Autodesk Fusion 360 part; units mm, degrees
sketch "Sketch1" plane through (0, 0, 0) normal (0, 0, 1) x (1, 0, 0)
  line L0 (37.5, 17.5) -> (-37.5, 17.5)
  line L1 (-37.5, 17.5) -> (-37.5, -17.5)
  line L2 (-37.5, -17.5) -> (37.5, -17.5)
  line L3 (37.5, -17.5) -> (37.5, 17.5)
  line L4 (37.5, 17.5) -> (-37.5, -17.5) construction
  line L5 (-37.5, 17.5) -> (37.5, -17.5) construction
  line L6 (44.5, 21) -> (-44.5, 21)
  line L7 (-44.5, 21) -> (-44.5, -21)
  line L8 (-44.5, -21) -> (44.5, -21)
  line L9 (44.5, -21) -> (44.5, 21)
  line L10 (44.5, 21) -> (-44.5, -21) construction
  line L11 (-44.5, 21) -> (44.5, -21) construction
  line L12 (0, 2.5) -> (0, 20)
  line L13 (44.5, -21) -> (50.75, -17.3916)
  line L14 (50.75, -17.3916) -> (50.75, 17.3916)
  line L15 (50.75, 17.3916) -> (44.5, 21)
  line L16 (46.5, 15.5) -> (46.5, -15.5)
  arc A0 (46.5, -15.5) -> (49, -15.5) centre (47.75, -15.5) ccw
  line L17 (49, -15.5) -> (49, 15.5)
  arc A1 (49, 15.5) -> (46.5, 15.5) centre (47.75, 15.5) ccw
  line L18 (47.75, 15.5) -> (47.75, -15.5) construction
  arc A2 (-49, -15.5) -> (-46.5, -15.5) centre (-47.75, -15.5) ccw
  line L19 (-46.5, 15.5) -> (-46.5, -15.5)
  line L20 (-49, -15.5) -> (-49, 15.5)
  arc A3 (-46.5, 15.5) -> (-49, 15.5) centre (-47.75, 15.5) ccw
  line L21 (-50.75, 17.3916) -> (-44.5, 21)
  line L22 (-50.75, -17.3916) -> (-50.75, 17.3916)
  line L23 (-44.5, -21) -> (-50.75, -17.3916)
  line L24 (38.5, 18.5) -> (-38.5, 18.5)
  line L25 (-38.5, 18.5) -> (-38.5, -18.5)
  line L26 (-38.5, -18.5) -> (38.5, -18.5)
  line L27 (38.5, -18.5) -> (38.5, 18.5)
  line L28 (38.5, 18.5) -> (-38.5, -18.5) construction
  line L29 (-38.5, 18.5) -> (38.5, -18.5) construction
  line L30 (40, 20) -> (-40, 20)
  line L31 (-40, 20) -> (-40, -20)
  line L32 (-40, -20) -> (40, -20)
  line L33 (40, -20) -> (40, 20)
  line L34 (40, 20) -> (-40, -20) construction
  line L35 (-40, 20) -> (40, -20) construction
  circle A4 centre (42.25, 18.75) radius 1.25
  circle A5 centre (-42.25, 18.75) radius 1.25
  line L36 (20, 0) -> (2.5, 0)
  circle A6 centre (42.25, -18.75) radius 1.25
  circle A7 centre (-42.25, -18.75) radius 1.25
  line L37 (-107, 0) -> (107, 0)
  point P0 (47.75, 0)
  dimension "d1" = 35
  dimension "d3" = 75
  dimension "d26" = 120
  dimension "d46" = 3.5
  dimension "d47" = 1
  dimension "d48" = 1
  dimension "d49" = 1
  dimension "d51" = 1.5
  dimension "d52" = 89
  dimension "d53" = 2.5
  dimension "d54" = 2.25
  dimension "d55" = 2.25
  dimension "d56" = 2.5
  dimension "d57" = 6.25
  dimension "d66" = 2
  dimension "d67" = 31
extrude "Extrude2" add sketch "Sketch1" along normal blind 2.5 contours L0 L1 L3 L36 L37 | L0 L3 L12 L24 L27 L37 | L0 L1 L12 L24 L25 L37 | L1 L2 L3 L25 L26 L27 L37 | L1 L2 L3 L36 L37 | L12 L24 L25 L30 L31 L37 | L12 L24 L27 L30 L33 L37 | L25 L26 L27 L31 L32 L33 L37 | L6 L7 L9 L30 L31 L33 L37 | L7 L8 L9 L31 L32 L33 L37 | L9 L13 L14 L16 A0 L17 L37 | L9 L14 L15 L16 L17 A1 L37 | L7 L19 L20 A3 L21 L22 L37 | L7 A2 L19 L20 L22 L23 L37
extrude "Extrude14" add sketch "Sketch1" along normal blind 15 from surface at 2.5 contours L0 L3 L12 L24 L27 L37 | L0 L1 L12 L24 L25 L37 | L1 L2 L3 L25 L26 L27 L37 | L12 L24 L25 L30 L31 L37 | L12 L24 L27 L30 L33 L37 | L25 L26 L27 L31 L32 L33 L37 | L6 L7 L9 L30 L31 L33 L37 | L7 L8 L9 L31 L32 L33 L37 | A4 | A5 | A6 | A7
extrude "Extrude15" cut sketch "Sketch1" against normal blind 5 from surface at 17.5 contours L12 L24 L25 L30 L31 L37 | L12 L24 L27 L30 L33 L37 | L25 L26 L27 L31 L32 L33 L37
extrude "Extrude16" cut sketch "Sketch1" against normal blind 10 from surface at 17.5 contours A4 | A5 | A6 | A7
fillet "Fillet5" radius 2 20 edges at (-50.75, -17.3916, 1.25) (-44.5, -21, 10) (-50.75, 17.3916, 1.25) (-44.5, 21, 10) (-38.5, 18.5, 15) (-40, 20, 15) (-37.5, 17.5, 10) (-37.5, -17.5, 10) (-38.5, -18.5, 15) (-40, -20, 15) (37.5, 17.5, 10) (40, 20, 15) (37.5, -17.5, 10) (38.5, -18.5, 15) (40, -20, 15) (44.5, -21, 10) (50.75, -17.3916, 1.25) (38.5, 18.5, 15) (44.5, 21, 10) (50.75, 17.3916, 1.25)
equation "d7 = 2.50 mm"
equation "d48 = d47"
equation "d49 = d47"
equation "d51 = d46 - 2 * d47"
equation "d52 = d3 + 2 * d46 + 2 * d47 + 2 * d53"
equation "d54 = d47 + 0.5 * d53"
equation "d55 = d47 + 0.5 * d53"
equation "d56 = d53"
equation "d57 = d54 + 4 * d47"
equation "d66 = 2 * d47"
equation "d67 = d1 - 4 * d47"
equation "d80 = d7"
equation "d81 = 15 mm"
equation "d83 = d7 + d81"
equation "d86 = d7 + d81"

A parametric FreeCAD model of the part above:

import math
import FreeCAD as App
import Part
import Sketcher
from FreeCAD import Vector
Q = App.Units.Quantity


def edges_at(feature, points):
    """Names of the edges that pass closest to the given points."""
    edges = feature.Shape.Edges
    near = lambda p: min(range(len(edges)), key=lambda i: edges[i].distToShape(Part.Vertex(*p))[0])
    return sorted({f"Edge{near(p) + 1}" for p in points})

doc = App.newDocument("Part")
body = doc.addObject("PartDesign::Body", "Body")

# Sketch on XY plane
sketch1 = body.newObject("Sketcher::SketchObject", "Sketch")
sketch1.AttachmentSupport = (doc.getObject("XY_Plane"), [""])
sketch1.MapMode = "FlatFace"
sketch1.addGeometry([
    Part.LineSegment(Vector(44.5, 21, 0), Vector(-44.5, 21, 0)),  # 0
    Part.LineSegment(Vector(-44.5, 21, 0), Vector(-50.8, 17.4, 0)),  # 1
    Part.LineSegment(Vector(-50.8, 17.4, 0), Vector(-50.8, -17.4, 0)),  # 2
    Part.LineSegment(Vector(-50.8, -17.4, 0), Vector(-44.5, -21, 0)),  # 3
    Part.LineSegment(Vector(-44.5, -21, 0), Vector(44.5, -21, 0)),  # 4
    Part.LineSegment(Vector(44.5, -21, 0), Vector(50.8, -17.4, 0)),  # 5
    Part.LineSegment(Vector(50.8, -17.4, 0), Vector(50.8, 17.4, 0)),  # 6
    Part.LineSegment(Vector(50.8, 17.4, 0), Vector(44.5, 21, 0)),  # 7
    Part.Circle(Vector(-42.2, 18.8, 0), Vector(0, 0, 1), 1.2),  # 8
    Part.Circle(Vector(42.2, 18.8, 0), Vector(0, 0, 1), 1.2),  # 9
    Part.Circle(Vector(42.2, -18.8, 0), Vector(0, 0, 1), 1.2),  # 10
    Part.Circle(Vector(-42.2, -18.8, 0), Vector(0, 0, 1), 1.2),  # 11
    Part.LineSegment(Vector(-46.5, 15.5, 0), Vector(-46.5, -15.5, 0)),  # 12
    Part.ArcOfCircle(Part.Circle(Vector(-47.8, -15.5, 0), Vector(0, 0, 1), 1.2), math.radians(180), math.radians(360)),  # 13
    Part.LineSegment(Vector(-49, -15.5, 0), Vector(-49, 15.5, 0)),  # 14
    Part.ArcOfCircle(Part.Circle(Vector(-47.8, 15.5, 0), Vector(0, 0, 1), 1.2), math.radians(0), math.radians(180)),  # 15
    Part.LineSegment(Vector(49, 15.5, 0), Vector(49, -15.5, 0)),  # 16
    Part.ArcOfCircle(Part.Circle(Vector(47.8, -15.5, 0), Vector(0, 0, 1), 1.2), math.radians(180), math.radians(360)),  # 17
    Part.LineSegment(Vector(46.5, -15.5, 0), Vector(46.5, 15.5, 0)),  # 18
    Part.ArcOfCircle(Part.Circle(Vector(47.8, 15.5, 0), Vector(0, 0, 1), 1.2), math.radians(0), math.radians(180)),  # 19
], False)
sketch1.addConstraint([
    Sketcher.Constraint("Coincident", 0, 2, 1, 1),
    Sketcher.Constraint("Coincident", 1, 2, 2, 1),
    Sketcher.Constraint("Coincident", 2, 2, 3, 1),
    Sketcher.Constraint("Coincident", 3, 2, 4, 1),
    Sketcher.Constraint("Coincident", 4, 2, 5, 1),
    Sketcher.Constraint("Coincident", 5, 2, 6, 1),
    Sketcher.Constraint("Coincident", 6, 2, 7, 1),
    Sketcher.Constraint("Coincident", 7, 2, 0, 1),
    Sketcher.Constraint("Tangent", 12, 2, 13, 2),
    Sketcher.Constraint("Tangent", 13, 1, 14, 1),
    Sketcher.Constraint("Tangent", 14, 2, 15, 2),
    Sketcher.Constraint("Tangent", 15, 1, 12, 1),
    Sketcher.Constraint("Tangent", 16, 2, 17, 2),
    Sketcher.Constraint("Tangent", 17, 1, 18, 1),
    Sketcher.Constraint("Tangent", 18, 2, 19, 2),
    Sketcher.Constraint("Tangent", 19, 1, 16, 1),
    Sketcher.Constraint("Horizontal", 0),
    Sketcher.Constraint("Vertical", 2),
    Sketcher.Constraint("Horizontal", 4),
    Sketcher.Constraint("Vertical", 6),
    Sketcher.Constraint("Vertical", 12),
    Sketcher.Constraint("Vertical", 14),
    Sketcher.Constraint("Vertical", 16),
    Sketcher.Constraint("Vertical", 18),
    Sketcher.Constraint("Equal", 8, 9),
    Sketcher.Constraint("Equal", 9, 10),
    Sketcher.Constraint("Equal", 10, 11),
    Sketcher.Constraint("Equal", 11, 13),
    Sketcher.Constraint("Equal", 15, 17),
    Sketcher.Constraint("Symmetric", 8, 3, 10, 3, -1, 1),
    Sketcher.Constraint("Symmetric", 9, 3, 11, 3, -1, 1),
    Sketcher.Constraint("Symmetric", 15, 3, 17, 3, -1, 1),
    Sketcher.Constraint("Symmetric", 0, 2, 4, 2, -1, 1),
    Sketcher.Constraint("Symmetric", 1, 2, 5, 2, -1, 1),
    Sketcher.Constraint("Symmetric", 8, 3, 9, 3, -2),
    Sketcher.Constraint("Parallel", 3, 7),
    Sketcher.Constraint("Horizontal", 13, 3, 17, 3),
    Sketcher.Constraint("Horizontal", 15, 3, 19, 3),
    Sketcher.Constraint("Horizontal", 2, 2, 5, 2),
    Sketcher.Constraint("Horizontal", 1, 2, 6, 2),
    Sketcher.Constraint("Vertical", 0, 2, 3, 2),
    Sketcher.Constraint("Diameter", 8, Q("2.5 mm")),
    Sketcher.Constraint("DistanceX", 0, 2, 0, 1, Q("89 mm")),
    Sketcher.Constraint("DistanceY", 12, 2, 12, 1, Q("31 mm")),
    Sketcher.Constraint("DistanceX", 12, 2, 3, 2, Q("2 mm")),
    Sketcher.Constraint("Angle", 1, Q("-150.0003 deg")),
    Sketcher.Constraint("DistanceX", 0, 2, 8, 3, Q("2.25 mm")),
    Sketcher.Constraint("DistanceY", 8, 3, 0, 2, Q("2.25 mm")),
    Sketcher.Constraint("DistanceX", 1, 2, 0, 2, Q("6.25 mm")),
    Sketcher.Constraint("DistanceY", -1, 1, 0, 2, Q("21 mm")),
])
pad1 = body.newObject("PartDesign::Pad", "Pad")
pad1.Profile = sketch1
pad1.Length = 2.5

# Sketch on XY plane
sketch2 = body.newObject("Sketcher::SketchObject", "Sketch001")
sketch2.AttachmentSupport = (doc.getObject("XY_Plane"), [""])
sketch2.MapMode = "FlatFace"
sketch2.AttachmentOffset = App.Placement(Vector(0, 0, 2.5), App.Rotation())
sketch2.addGeometry([
    Part.LineSegment(Vector(-44, 21, 0), Vector(-44, -21, 0)),  # 0
    Part.LineSegment(Vector(-44, -21, 0), Vector(44, -21, 0)),  # 1
    Part.LineSegment(Vector(44, -21, 0), Vector(44, 21, 0)),  # 2
    Part.LineSegment(Vector(44, 21, 0), Vector(-44, 21, 0)),  # 3
    Part.LineSegment(Vector(38, 18, 0), Vector(38, -18, 0)),  # 4
    Part.LineSegment(Vector(38, -18, 0), Vector(-38, -18, 0)),  # 5
    Part.LineSegment(Vector(-38, -18, 0), Vector(-38, 18, 0)),  # 6
    Part.LineSegment(Vector(-38, 18, 0), Vector(38, 18, 0)),  # 7
], False)
sketch2.addConstraint([
    Sketcher.Constraint("Coincident", 0, 2, 1, 1),
    Sketcher.Constraint("Coincident", 1, 2, 2, 1),
    Sketcher.Constraint("Coincident", 2, 2, 3, 1),
    Sketcher.Constraint("Coincident", 3, 2, 0, 1),
    Sketcher.Constraint("Coincident", 4, 2, 5, 1),
    Sketcher.Constraint("Coincident", 5, 2, 6, 1),
    Sketcher.Constraint("Coincident", 6, 2, 7, 1),
    Sketcher.Constraint("Coincident", 7, 2, 4, 1),
    Sketcher.Constraint("Vertical", 0),
    Sketcher.Constraint("Horizontal", 1),
    Sketcher.Constraint("Vertical", 2),
    Sketcher.Constraint("Horizontal", 3),
    Sketcher.Constraint("Vertical", 4),
    Sketcher.Constraint("Horizontal", 5),
    Sketcher.Constraint("Vertical", 6),
    Sketcher.Constraint("Horizontal", 7),
    Sketcher.Constraint("Symmetric", 0, 2, 2, 2, -1, 1),
    Sketcher.Constraint("Symmetric", 4, 2, 6, 2, -1, 1),
    Sketcher.Constraint("DistanceX", 1, 1, 1, 2, Q("89 mm")),
    Sketcher.Constraint("DistanceX", 5, 2, 5, 1, Q("75 mm")),
    Sketcher.Constraint("DistanceY", 4, 2, 4, 1, Q("35 mm")),
    Sketcher.Constraint("DistanceY", 1, 2, 4, 2, Q("3.5 mm")),
])
pad2 = body.newObject("PartDesign::Pad", "Pad001")
pad2.Profile = sketch2
pad2.Length = 15

# Sketch on XY plane
sketch3 = body.newObject("Sketcher::SketchObject", "Sketch002")
sketch3.AttachmentSupport = (doc.getObject("XY_Plane"), [""])
sketch3.MapMode = "FlatFace"
sketch3.AttachmentOffset = App.Placement(Vector(0, 0, 17.5), App.Rotation())
sketch3.addGeometry([
    Part.LineSegment(Vector(-40, 20, 0), Vector(-40, -20, 0)),  # 0
    Part.LineSegment(Vector(-40, -20, 0), Vector(40, -20, 0)),  # 1
    Part.LineSegment(Vector(40, -20, 0), Vector(40, 20, 0)),  # 2
    Part.LineSegment(Vector(40, 20, 0), Vector(-40, 20, 0)),  # 3
    Part.LineSegment(Vector(-38, 18, 0), Vector(38, 18, 0)),  # 4
    Part.LineSegment(Vector(38, 18, 0), Vector(38, -18, 0)),  # 5
    Part.LineSegment(Vector(38, -18, 0), Vector(-38, -18, 0)),  # 6
    Part.LineSegment(Vector(-38, -18, 0), Vector(-38, 18, 0)),  # 7
], False)
sketch3.addConstraint([
    Sketcher.Constraint("Coincident", 0, 2, 1, 1),
    Sketcher.Constraint("Coincident", 1, 2, 2, 1),
    Sketcher.Constraint("Coincident", 2, 2, 3, 1),
    Sketcher.Constraint("Coincident", 3, 2, 0, 1),
    Sketcher.Constraint("Coincident", 4, 2, 5, 1),
    Sketcher.Constraint("Coincident", 5, 2, 6, 1),
    Sketcher.Constraint("Coincident", 6, 2, 7, 1),
    Sketcher.Constraint("Coincident", 7, 2, 4, 1),
    Sketcher.Constraint("Vertical", 0),
    Sketcher.Constraint("Horizontal", 1),
    Sketcher.Constraint("Vertical", 2),
    Sketcher.Constraint("Horizontal", 3),
    Sketcher.Constraint("Horizontal", 4),
    Sketcher.Constraint("Vertical", 5),
    Sketcher.Constraint("Horizontal", 6),
    Sketcher.Constraint("Vertical", 7),
    Sketcher.Constraint("Symmetric", 0, 2, 2, 2, -1, 1),
    Sketcher.Constraint("Symmetric", 4, 2, 6, 2, -1, 1),
    Sketcher.Constraint("DistanceX", 4, 2, 2, 2, Q("1.5 mm")),
    Sketcher.Constraint("DistanceY", 4, 2, 2, 2, Q("1.5 mm")),
    Sketcher.Constraint("DistanceX", 1, 1, 1, 2, Q("80 mm")),
    Sketcher.Constraint("DistanceY", 0, 2, 0, 1, Q("40 mm")),
])
pocket1 = body.newObject("PartDesign::Pocket", "Pocket")
pocket1.Profile = sketch3
pocket1.Length = 5

# Sketch on XY plane
sketch4 = body.newObject("Sketcher::SketchObject", "Sketch003")
sketch4.AttachmentSupport = (doc.getObject("XY_Plane"), [""])
sketch4.MapMode = "FlatFace"
sketch4.AttachmentOffset = App.Placement(Vector(0, 0, 17.5), App.Rotation())
sketch4.addGeometry([
    Part.Circle(Vector(42.2, 18.8, 0), Vector(0, 0, 1), 1.2),
    Part.Circle(Vector(-42.2, 18.8, 0), Vector(0, 0, 1), 1.2),
    Part.Circle(Vector(42.2, -18.8, 0), Vector(0, 0, 1), 1.2),
    Part.Circle(Vector(-42.2, -18.8, 0), Vector(0, 0, 1), 1.2),
], False)
sketch4.addConstraint([
    Sketcher.Constraint("Equal", 0, 1),
    Sketcher.Constraint("Equal", 1, 2),
    Sketcher.Constraint("Equal", 2, 3),
    Sketcher.Constraint("Symmetric", 1, 3, 2, 3, -1, 1),
    Sketcher.Constraint("Symmetric", 0, 3, 3, 3, -1, 1),
    Sketcher.Constraint("Symmetric", 0, 3, 1, 3, -2),
    Sketcher.Constraint("Diameter", 0, Q("2.5 mm")),
    Sketcher.Constraint("DistanceX", 1, 3, 0, 3, Q("84.5 mm")),
    Sketcher.Constraint("DistanceY", 2, 3, 0, 3, Q("37.5 mm")),
])
pocket2 = body.newObject("PartDesign::Pocket", "Pocket001")
pocket2.Profile = sketch4
pocket2.Length = 10
doc.recompute()

fillet = body.newObject("PartDesign::Fillet", "Fillet")
fillet.Base = (pocket2, edges_at(pocket2, [
    (-50.75, -17.392, 1.25),
    (-44.5, -21, 10),
    (-50.75, 17.392, 1.25),
    (-44.5, 21, 10),
    (-38.5, 18.5, 15),
    (-40, 20, 15),
    (-37.5, 17.5, 10),
    (-37.5, -17.5, 10),
    (-38.5, -18.5, 15),
    (-40, -20, 15),
    (37.5, 17.5, 10),
    (40, 20, 15),
    (37.5, -17.5, 10),
    (38.5, -18.5, 15),
    (40, -20, 15),
    (44.5, -21, 10),
    (50.75, -17.392, 1.25),
    (38.5, 18.5, 15),
    (44.5, 21, 10),
    (50.75, 17.392, 1.25),
]))
fillet.Radius = 2

doc.recompute()
